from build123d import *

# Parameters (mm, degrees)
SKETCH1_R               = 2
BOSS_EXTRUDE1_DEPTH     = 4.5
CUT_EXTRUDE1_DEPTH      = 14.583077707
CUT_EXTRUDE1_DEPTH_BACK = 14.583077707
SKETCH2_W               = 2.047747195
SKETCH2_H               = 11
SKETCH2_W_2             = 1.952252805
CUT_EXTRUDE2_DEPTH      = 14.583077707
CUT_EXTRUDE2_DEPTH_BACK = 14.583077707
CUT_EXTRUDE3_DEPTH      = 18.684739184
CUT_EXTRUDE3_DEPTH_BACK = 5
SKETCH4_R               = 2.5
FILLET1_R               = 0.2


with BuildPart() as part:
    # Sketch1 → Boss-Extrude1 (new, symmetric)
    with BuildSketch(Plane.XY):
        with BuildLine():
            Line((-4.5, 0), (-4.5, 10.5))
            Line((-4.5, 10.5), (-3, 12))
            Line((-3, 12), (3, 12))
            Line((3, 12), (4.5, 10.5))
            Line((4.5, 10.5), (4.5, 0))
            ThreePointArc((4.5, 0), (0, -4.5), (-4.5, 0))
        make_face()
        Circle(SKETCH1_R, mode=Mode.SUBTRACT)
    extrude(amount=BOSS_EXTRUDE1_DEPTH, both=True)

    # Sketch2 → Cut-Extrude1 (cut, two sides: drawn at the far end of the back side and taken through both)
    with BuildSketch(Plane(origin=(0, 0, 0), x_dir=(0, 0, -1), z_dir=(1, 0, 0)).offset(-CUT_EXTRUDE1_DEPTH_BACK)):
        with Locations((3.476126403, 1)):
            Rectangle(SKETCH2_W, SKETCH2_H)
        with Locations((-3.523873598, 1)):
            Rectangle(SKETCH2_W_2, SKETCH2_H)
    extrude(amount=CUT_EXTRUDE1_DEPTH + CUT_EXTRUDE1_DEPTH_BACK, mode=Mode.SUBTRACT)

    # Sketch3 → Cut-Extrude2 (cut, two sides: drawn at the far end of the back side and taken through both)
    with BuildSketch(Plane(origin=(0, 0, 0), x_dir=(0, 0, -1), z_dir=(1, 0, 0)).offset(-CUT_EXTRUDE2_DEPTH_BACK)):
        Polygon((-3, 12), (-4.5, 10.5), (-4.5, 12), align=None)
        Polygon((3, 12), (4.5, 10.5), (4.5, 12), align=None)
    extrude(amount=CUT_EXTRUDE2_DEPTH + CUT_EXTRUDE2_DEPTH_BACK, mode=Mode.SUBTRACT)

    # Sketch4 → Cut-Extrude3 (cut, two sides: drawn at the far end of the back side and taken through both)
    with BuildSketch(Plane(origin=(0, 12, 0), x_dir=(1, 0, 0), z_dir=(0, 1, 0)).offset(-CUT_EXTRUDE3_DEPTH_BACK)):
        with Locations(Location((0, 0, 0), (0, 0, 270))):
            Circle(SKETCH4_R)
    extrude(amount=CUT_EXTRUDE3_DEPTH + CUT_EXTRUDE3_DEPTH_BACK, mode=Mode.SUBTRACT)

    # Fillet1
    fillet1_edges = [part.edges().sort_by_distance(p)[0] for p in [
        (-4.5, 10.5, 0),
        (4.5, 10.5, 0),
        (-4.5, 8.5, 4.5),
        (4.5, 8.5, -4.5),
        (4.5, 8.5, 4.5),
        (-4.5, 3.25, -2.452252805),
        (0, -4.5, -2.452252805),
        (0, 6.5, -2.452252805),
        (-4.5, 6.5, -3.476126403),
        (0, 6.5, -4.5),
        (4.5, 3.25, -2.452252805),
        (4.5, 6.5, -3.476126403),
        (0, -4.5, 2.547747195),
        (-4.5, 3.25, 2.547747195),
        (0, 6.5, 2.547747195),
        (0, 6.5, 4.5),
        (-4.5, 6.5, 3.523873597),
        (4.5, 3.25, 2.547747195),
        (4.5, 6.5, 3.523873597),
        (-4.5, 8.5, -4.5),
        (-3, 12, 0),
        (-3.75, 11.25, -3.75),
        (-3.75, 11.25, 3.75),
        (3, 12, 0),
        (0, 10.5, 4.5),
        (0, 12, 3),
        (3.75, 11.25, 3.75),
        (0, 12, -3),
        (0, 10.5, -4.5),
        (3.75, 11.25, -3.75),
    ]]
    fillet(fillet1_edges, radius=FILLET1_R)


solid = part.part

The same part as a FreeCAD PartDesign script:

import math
import FreeCAD as App
import Part
import Sketcher
Q = App.Units.Quantity


def edges_at(feature, points):
    """Names of the edges that pass closest to the given points."""
    edges = feature.Shape.Edges
    near = lambda p: min(range(len(edges)), key=lambda i: edges[i].distToShape(Part.Vertex(*p))[0])
    return sorted({f"Edge{near(p) + 1}" for p in points})


def add_polygon(sketch, points):
    """Adds a closed chain of lines whose ends are joined by coincident constraints."""
    first, n = sketch.GeometryCount, len(points)
    for a, b in zip(points, points[1:] + points[:1]):
        sketch.addGeometry(Part.LineSegment(App.Vector(*a, 0), App.Vector(*b, 0)), False)
    for i in range(n):
        sketch.addConstraint(Sketcher.Constraint("Coincident", first + i, 2, first + (i + 1) % n, 1))

doc = App.newDocument("Part")
body = doc.addObject("PartDesign::Body", "Body")

# Sketch on XY plane
sketch1 = doc.addObject("Sketcher::SketchObject", "Sketch")
body.addObject(sketch1)
sketch1.AttachmentSupport = (doc.XY_Plane, [""])
sketch1.MapMode = "FlatFace"
sketch1.addGeometry(Part.LineSegment(App.Vector(-4.5, 10.5, 0), App.Vector(-4.5, 0, 0)), False)
sketch1.addGeometry(Part.ArcOfCircle(Part.Circle(App.Vector(0, 0, 0), App.Vector(0, 0, 1), 4.5), math.radians(180), math.radians(360)), False)
sketch1.addGeometry(Part.LineSegment(App.Vector(4.5, 0, 0), App.Vector(4.5, 10.5, 0)), False)
sketch1.addGeometry(Part.LineSegment(App.Vector(4.5, 10.5, 0), App.Vector(3, 12, 0)), False)
sketch1.addGeometry(Part.LineSegment(App.Vector(3, 12, 0), App.Vector(-3, 12, 0)), False)
sketch1.addGeometry(Part.LineSegment(App.Vector(-3, 12, 0), App.Vector(-4.5, 10.5, 0)), False)
sketch1.addGeometry(Part.Circle(App.Vector(0, 0, 0), App.Vector(0, 0, 1), 2), False)
sketch1.addConstraint(Sketcher.Constraint("Tangent", 0, 2, 1, 1))
sketch1.addConstraint(Sketcher.Constraint("Tangent", 1, 2, 2, 1))
sketch1.addConstraint(Sketcher.Constraint("Coincident", 2, 2, 3, 1))
sketch1.addConstraint(Sketcher.Constraint("Coincident", 3, 2, 4, 1))
sketch1.addConstraint(Sketcher.Constraint("Coincident", 4, 2, 5, 1))
sketch1.addConstraint(Sketcher.Constraint("Coincident", 5, 2, 0, 1))
sketch1.addConstraint(Sketcher.Constraint("Vertical", 0))
sketch1.addConstraint(Sketcher.Constraint("Vertical", 2))
sketch1.addConstraint(Sketcher.Constraint("Horizontal", 4))
sketch1.addConstraint(Sketcher.Constraint("Coincident", 1, 3, -1, 1))
sketch1.addConstraint(Sketcher.Constraint("Coincident", 6, 3, -1, 1))
sketch1.addConstraint(Sketcher.Constraint("Perpendicular", 3, 5))
sketch1.addConstraint(Sketcher.Constraint("Horizontal", 2, 2, 5, 2))
sketch1.addConstraint(Sketcher.Constraint("Equal", 3, 5))
sketch1.addConstraint(Sketcher.Constraint("Diameter", 6, Q("4 mm")))
sketch1.addConstraint(Sketcher.Constraint("Radius", 1, Q("4.5 mm")))
sketch1.addConstraint(Sketcher.Constraint("DistanceX", 4, 2, 4, 1, Q("6 mm")))
sketch1.addConstraint(Sketcher.Constraint("DistanceY", 0, 2, 0, 1, Q("10.5 mm")))
pad1 = doc.addObject("PartDesign::Pad", "Pad")
body.addObject(pad1)
pad1.Profile = sketch1
pad1.Length = 9
pad1.Midplane = True

# Sketch on YZ plane
sketch2 = doc.addObject("Sketcher::SketchObject", "Sketch001")
body.addObject(sketch2)
sketch2.AttachmentSupport = (doc.YZ_Plane, [""])
sketch2.MapMode = "FlatFace"
add_polygon(sketch2, [(6.5, -2.5), (-4.5, -2.5), (-4.5, -4.5), (6.5, -4.5)])  # lines 0-3
add_polygon(sketch2, [(6.5, 4.5), (-4.5, 4.5), (-4.5, 2.5), (6.5, 2.5)])  # lines 4-7
sketch2.addConstraint(Sketcher.Constraint("Horizontal", 0))
sketch2.addConstraint(Sketcher.Constraint("Vertical", 1))
sketch2.addConstraint(Sketcher.Constraint("Horizontal", 2))
sketch2.addConstraint(Sketcher.Constraint("Vertical", 3))
sketch2.addConstraint(Sketcher.Constraint("Horizontal", 4))
sketch2.addConstraint(Sketcher.Constraint("Vertical", 5))
sketch2.addConstraint(Sketcher.Constraint("Horizontal", 6))
sketch2.addConstraint(Sketcher.Constraint("Vertical", 7))
sketch2.addConstraint(Sketcher.Constraint("Symmetric", 1, 2, 4, 2, -1))
sketch2.addConstraint(Sketcher.Constraint("Vertical", 3, 2, 6, 2))
sketch2.addConstraint(Sketcher.Constraint("DistanceX", 0, 2, 0, 1, Q("11 mm")))
sketch2.addConstraint(Sketcher.Constraint("DistanceY", 1, 2, 4, 2, Q("9 mm")))
sketch2.addConstraint(Sketcher.Constraint("DistanceY", 0, 2, 5, 2, Q("5 mm")))
sketch2.addConstraint(Sketcher.Constraint("DistanceX", 0, 2, -1, 1, Q("4.5 mm")))
sketch2.addConstraint(Sketcher.Constraint("DistanceY", 1, 2, 1, 1, Q("2.047747 mm")))
pocket1 = doc.addObject("PartDesign::Pocket", "Pocket")
body.addObject(pocket1)
pocket1.Profile = sketch2
pocket1.Type = "ThroughAll"
pocket1.Midplane = True

# Sketch on YZ plane
sketch3 = doc.addObject("Sketcher::SketchObject", "Sketch002")
body.addObject(sketch3)
sketch3.AttachmentSupport = (doc.YZ_Plane, [""])
sketch3.MapMode = "FlatFace"
add_polygon(sketch3, [(10.5, 4.5), (12, 3), (12, 4.5)])  # lines 0-2
add_polygon(sketch3, [(12, -3), (10.5, -4.5), (12, -4.5)])  # lines 3-5
sketch3.addConstraint(Sketcher.Constraint("Vertical", 1))
sketch3.addConstraint(Sketcher.Constraint("Horizontal", 2))
sketch3.addConstraint(Sketcher.Constraint("Horizontal", 4))
sketch3.addConstraint(Sketcher.Constraint("Vertical", 5))
sketch3.addConstraint(Sketcher.Constraint("Symmetric", 2, 2, 3, 2, -1))
sketch3.addConstraint(Sketcher.Constraint("Symmetric", 0, 2, 5, 2, -1))
sketch3.addConstraint(Sketcher.Constraint("Perpendicular", 0, 3))
sketch3.addConstraint(Sketcher.Constraint("DistanceX", 2, 2, 2, 1, Q("1.5 mm")))
sketch3.addConstraint(Sketcher.Constraint("DistanceX", -1, 1, 0, 2, Q("12 mm")))
sketch3.addConstraint(Sketcher.Constraint("DistanceY", -1, 1, 0, 2, Q("3 mm")))
pocket2 = doc.addObject("PartDesign::Pocket", "Pocket001")
body.addObject(pocket2)
pocket2.Profile = sketch3
pocket2.Type = "ThroughAll"
pocket2.Midplane = True

# Sketch on XZ plane
sketch4 = doc.addObject("Sketcher::SketchObject", "Sketch003")
body.addObject(sketch4)
sketch4.AttachmentSupport = (doc.XZ_Plane, [""])
sketch4.MapMode = "FlatFace"
sketch4.AttachmentOffset = App.Placement(App.Vector(0, 0, -12), App.Rotation())
sketch4.addGeometry(Part.Circle(App.Vector(0, 0, 0), App.Vector(0, 0, 1), 2.5), False)
sketch4.addConstraint(Sketcher.Constraint("Coincident", 0, 3, -1, 1))
sketch4.addConstraint(Sketcher.Constraint("Diameter", 0, Q("5 mm")))
pocket3 = doc.addObject("PartDesign::Pocket", "Pocket002")
body.addObject(pocket3)
pocket3.Profile = sketch4
pocket3.Type = "TwoLengths"
pocket3.Length = 18.684739
pocket3.Length2 = 5
doc.recompute()

fillet = doc.addObject("PartDesign::Fillet", "Fillet")
body.addObject(fillet)
fillet.Base = (pocket3, edges_at(pocket3, [
    (-4.5, 10.5, 0),
    (4.5, 10.5, 0),
    (-4.5, 8.5, 4.5),
    (4.5, 8.5, -4.5),
    (4.5, 8.5, 4.5),
    (-4.5, 3.25, -2.452),
    (0, -4.5, -2.452),
    (0, 6.5, -2.452),
    (-4.5, 6.5, -3.476),
    (0, 6.5, -4.5),
    (4.5, 3.25, -2.452),
    (4.5, 6.5, -3.476),
    (0, -4.5, 2.548),
    (-4.5, 3.25, 2.548),
    (0, 6.5, 2.548),
    (0, 6.5, 4.5),
    (-4.5, 6.5, 3.524),
    (4.5, 3.25, 2.548),
    (4.5, 6.5, 3.524),
    (-4.5, 8.5, -4.5),
    (-3, 12, 0),
    (-3.75, 11.25, -3.75),
    (-3.75, 11.25, 3.75),
    (3, 12, 0),
    (0, 10.5, 4.5),
    (0, 12, 3),
    (3.75, 11.25, 3.75),
    (0, 12, -3),
    (0, 10.5, -4.5),
    (3.75, 11.25, -3.75),
]))
fillet.Radius = 0.2

doc.recompute()
